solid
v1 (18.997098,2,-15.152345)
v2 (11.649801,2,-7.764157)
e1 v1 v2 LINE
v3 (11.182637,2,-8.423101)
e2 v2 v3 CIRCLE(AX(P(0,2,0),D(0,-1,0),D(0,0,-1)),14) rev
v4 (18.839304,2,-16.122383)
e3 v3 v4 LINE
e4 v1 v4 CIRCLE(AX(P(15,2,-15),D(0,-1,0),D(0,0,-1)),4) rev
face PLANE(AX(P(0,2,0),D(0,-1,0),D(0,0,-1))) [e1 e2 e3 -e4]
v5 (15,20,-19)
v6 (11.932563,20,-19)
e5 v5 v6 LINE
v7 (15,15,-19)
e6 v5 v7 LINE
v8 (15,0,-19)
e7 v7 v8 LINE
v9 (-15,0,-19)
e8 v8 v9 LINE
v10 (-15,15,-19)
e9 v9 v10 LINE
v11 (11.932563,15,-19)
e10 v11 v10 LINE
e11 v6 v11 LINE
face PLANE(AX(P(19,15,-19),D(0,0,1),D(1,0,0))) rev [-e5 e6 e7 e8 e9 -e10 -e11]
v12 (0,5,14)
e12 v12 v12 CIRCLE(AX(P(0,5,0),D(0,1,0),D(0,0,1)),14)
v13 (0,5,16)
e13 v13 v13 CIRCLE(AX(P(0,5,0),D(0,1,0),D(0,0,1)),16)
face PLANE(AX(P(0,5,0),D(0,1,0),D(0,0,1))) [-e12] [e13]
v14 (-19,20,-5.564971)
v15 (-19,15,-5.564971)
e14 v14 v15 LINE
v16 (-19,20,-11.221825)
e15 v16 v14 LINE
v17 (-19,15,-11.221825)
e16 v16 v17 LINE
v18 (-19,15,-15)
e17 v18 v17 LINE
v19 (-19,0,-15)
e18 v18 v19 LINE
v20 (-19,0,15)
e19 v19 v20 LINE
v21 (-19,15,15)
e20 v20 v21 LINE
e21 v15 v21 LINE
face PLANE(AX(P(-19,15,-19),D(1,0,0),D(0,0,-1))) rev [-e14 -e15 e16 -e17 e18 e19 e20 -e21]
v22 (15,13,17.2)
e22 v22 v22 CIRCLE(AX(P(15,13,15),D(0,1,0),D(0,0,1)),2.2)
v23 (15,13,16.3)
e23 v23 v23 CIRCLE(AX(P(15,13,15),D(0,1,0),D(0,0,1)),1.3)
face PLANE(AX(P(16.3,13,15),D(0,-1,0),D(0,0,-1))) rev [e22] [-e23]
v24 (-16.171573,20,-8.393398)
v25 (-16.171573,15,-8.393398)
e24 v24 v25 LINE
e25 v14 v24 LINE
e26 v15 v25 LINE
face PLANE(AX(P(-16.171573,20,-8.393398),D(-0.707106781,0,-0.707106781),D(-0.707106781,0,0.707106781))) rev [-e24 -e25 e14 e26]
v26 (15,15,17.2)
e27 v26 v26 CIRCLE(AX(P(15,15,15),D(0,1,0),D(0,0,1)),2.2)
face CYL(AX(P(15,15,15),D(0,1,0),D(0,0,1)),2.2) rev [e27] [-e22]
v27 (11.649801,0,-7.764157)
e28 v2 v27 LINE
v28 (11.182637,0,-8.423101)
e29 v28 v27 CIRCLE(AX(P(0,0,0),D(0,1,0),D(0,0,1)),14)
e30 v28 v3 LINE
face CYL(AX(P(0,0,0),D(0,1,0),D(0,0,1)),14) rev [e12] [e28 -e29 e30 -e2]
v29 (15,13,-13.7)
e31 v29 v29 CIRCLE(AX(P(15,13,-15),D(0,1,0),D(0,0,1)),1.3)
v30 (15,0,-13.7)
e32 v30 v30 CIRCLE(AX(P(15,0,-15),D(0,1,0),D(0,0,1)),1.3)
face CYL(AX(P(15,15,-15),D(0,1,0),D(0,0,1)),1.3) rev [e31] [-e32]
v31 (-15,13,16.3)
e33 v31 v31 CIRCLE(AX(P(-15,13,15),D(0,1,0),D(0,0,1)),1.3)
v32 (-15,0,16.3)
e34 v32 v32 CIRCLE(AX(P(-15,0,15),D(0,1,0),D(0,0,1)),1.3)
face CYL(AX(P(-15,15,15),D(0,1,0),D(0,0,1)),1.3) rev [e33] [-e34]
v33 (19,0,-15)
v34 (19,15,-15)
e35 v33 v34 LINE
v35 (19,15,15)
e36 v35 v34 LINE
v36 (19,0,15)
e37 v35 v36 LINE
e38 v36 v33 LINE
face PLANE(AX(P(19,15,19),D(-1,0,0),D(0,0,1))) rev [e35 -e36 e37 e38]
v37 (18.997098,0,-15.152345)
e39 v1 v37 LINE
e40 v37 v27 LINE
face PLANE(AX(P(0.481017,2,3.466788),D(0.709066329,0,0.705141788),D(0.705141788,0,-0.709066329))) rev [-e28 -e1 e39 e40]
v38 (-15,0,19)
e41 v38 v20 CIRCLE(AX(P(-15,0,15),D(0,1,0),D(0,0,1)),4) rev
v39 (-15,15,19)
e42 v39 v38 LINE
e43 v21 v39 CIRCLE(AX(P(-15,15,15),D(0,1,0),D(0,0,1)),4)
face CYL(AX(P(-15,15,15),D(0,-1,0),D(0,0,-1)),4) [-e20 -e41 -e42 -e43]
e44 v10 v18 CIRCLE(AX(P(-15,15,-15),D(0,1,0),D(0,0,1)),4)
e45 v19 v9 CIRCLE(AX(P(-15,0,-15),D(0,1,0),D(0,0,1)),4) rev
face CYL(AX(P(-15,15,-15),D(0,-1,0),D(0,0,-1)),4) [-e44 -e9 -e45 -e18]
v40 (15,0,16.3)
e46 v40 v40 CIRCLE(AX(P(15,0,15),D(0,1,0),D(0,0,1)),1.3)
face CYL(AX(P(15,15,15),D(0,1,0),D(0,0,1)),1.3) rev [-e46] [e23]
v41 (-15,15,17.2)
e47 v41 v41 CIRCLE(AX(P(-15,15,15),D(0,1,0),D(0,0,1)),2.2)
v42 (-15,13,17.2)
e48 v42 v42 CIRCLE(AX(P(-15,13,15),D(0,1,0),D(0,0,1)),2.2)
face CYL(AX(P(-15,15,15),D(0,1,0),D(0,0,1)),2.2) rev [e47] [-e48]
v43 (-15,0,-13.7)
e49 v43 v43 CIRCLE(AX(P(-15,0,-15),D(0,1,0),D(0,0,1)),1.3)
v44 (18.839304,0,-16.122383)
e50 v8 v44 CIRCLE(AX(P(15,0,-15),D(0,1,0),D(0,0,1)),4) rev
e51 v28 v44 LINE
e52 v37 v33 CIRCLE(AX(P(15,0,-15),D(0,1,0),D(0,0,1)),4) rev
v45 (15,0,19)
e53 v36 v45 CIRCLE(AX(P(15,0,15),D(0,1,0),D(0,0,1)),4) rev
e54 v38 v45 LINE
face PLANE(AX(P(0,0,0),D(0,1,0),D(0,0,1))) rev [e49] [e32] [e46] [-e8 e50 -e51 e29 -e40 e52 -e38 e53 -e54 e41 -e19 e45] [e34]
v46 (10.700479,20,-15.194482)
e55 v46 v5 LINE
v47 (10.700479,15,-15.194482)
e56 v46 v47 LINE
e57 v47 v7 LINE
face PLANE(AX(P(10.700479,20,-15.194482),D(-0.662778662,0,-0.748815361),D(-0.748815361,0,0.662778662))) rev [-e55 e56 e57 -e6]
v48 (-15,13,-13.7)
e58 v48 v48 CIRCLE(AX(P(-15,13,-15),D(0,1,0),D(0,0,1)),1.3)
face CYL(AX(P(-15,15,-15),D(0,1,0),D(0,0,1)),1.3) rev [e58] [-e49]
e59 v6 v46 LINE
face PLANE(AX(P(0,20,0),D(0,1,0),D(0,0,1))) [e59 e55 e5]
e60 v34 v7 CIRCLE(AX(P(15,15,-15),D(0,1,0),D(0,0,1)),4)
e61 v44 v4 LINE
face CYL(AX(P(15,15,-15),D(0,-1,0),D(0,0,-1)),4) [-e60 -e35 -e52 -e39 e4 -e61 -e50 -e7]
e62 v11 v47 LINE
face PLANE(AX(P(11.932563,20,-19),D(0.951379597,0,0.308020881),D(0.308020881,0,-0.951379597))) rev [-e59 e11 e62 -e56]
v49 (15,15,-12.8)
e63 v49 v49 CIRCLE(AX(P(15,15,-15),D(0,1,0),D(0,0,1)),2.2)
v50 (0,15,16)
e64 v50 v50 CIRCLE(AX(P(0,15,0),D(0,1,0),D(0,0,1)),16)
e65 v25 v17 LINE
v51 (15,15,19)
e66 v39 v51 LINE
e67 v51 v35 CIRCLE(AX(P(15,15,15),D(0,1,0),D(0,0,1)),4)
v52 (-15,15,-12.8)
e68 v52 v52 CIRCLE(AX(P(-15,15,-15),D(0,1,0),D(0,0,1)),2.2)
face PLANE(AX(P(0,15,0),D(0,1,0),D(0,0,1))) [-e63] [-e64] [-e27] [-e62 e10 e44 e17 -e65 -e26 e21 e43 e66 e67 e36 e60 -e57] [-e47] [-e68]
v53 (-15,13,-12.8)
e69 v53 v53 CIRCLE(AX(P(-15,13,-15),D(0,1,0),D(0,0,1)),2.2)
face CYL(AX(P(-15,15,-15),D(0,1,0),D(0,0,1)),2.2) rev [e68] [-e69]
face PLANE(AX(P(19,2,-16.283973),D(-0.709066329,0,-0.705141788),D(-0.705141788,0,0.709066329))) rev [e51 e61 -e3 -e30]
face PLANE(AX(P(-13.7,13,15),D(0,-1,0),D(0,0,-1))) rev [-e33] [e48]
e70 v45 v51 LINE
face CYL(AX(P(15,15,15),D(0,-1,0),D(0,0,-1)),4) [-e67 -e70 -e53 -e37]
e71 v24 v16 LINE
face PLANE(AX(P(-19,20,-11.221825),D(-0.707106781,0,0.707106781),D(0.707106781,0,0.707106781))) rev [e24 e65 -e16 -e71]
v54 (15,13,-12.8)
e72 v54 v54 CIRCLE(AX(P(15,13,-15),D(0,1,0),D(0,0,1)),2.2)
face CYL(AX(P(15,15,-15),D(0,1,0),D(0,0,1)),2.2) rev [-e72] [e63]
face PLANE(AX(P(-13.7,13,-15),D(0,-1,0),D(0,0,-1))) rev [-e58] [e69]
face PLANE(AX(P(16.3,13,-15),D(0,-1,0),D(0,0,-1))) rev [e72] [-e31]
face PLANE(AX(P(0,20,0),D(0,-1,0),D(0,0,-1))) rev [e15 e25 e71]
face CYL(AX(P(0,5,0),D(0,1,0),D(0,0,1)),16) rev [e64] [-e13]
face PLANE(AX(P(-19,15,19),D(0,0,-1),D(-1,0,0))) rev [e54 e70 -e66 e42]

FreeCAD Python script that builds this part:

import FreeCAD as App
import Part
import Sketcher
Q = App.Units.Quantity


def edges_at(feature, points):
    """Names of the edges that pass closest to the given points."""
    edges = feature.Shape.Edges
    near = lambda p: min(range(len(edges)), key=lambda i: edges[i].distToShape(Part.Vertex(*p))[0])
    return sorted({f"Edge{near(p) + 1}" for p in points})

doc = App.newDocument("Part")
params = doc.addObject("Spreadsheet::Sheet", "Params")
for row, (alias, value) in enumerate([
    ("sketch1_width", "38 mm"),
    ("pad1_length", "15 mm"),
    ("sketch2_diameter", "32 mm"),
    ("pocket1_length", "10 mm"),
    ("sketch3_diameter", "28 mm"),
    ("fillet_radius", "4 mm"),
    ("sketch4_diameter", "2.6 mm"),
    ("hole_diameter", "2.6 mm"),
    ("hole_cbore_diameter", "4.4 mm"),
    ("hole_cbore_depth", "2 mm"),
    ("sketch5_length", "1 mm"),
    ("pocket3_length", "2 mm"),
    ("sketch6_length", "4 mm"),
    ("pad2_length", "5 mm"),
], start=1):
    params.set(f"A{row}", alias)
    params.set(f"B{row}", "=" + value)
    params.setAlias(f"B{row}", alias)

body = doc.addObject("PartDesign::Body", "Body")

# Sketch on XZ plane
sketch1 = body.newObject("Sketcher::SketchObject", "Sketch")
sketch1.AttachmentSupport = (doc.getObject("XZ_Plane"), [""])
sketch1.MapMode = "FlatFace"
sketch1.addGeometry(Part.LineSegment(App.Vector(-19, -19, 0), App.Vector(-19, 19, 0)), False)
sketch1.addGeometry(Part.LineSegment(App.Vector(-19, 19, 0), App.Vector(19, 19, 0)), False)
sketch1.addGeometry(Part.LineSegment(App.Vector(19, 19, 0), App.Vector(19, -19, 0)), False)
sketch1.addGeometry(Part.LineSegment(App.Vector(19, -19, 0), App.Vector(-19, -19, 0)), False)
sketch1.addConstraint(Sketcher.Constraint("Coincident", 0, 2, 1, 1))
sketch1.addConstraint(Sketcher.Constraint("Coincident", 1, 2, 2, 1))
sketch1.addConstraint(Sketcher.Constraint("Coincident", 2, 2, 3, 1))
sketch1.addConstraint(Sketcher.Constraint("Coincident", 3, 2, 0, 1))
sketch1.addConstraint(Sketcher.Constraint("Vertical", 0))
sketch1.addConstraint(Sketcher.Constraint("Horizontal", 1))
sketch1.addConstraint(Sketcher.Constraint("Vertical", 2))
sketch1.addConstraint(Sketcher.Constraint("Horizontal", 3))
sketch1.addConstraint(Sketcher.Constraint("Symmetric", 0, 2, 2, 2, -1, 1))
sketch1.addConstraint(Sketcher.Constraint("Equal", 3, 0))
sketch1.addConstraint(Sketcher.Constraint("DistanceX", 1, 1, 1, 2, Q("38 mm")))
sketch1.setExpression("Constraints[10]", "Params.sketch1_width")
pad1 = body.newObject("PartDesign::Pad", "Pad")
pad1.Profile = sketch1
pad1.setExpression("Length", "Params.pad1_length")
pad1.Reversed = True

# Sketch on XZ plane
sketch2 = body.newObject("Sketcher::SketchObject", "Sketch001")
sketch2.AttachmentSupport = (doc.getObject("XZ_Plane"), [""])
sketch2.MapMode = "FlatFace"
sketch2.AttachmentOffset = App.Placement(App.Vector(0, 0, -15), App.Rotation())
sketch2.addGeometry(Part.Circle(App.Vector(0, 0, 0), App.Vector(0, 0, 1), 16), False)
sketch2.addConstraint(Sketcher.Constraint("Coincident", 0, 3, -1, 1))
sketch2.addConstraint(Sketcher.Constraint("Diameter", 0, Q("32 mm")))
sketch2.setExpression("Constraints[1]", "Params.sketch2_diameter")
pocket1 = body.newObject("PartDesign::Pocket", "Pocket")
pocket1.Profile = sketch2
pocket1.setExpression("Length", "Params.pocket1_length")
pocket1.Reversed = True

# Sketch on XZ plane
sketch3 = body.newObject("Sketcher::SketchObject", "Sketch002")
sketch3.AttachmentSupport = (doc.getObject("XZ_Plane"), [""])
sketch3.MapMode = "FlatFace"
sketch3.AttachmentOffset = App.Placement(App.Vector(0, 0, -15), App.Rotation())
sketch3.addGeometry(Part.Circle(App.Vector(0, 0, 0), App.Vector(0, 0, 1), 14), False)
sketch3.addConstraint(Sketcher.Constraint("Coincident", 0, 3, -1, 1))
sketch3.addConstraint(Sketcher.Constraint("Diameter", 0, Q("28 mm")))
sketch3.setExpression("Constraints[1]", "Params.sketch3_diameter")
pocket2 = body.newObject("PartDesign::Pocket", "Pocket001")
pocket2.Profile = sketch3
pocket2.Type = "ThroughAll"
pocket2.Reversed = True
doc.recompute()

fillet = body.newObject("PartDesign::Fillet", "Fillet")
fillet.Base = (pocket2, edges_at(pocket2, [
    (19, 7.5, 19),
    (-19, 7.5, 19),
    (-19, 7.5, -19),
    (19, 7.5, -19),
]))
fillet.setExpression("Radius", "Params.fillet_radius")

# Sketch on XZ plane
sketch4 = body.newObject("Sketcher::SketchObject", "Sketch003")
sketch4.AttachmentSupport = (doc.getObject("XZ_Plane"), [""])
sketch4.MapMode = "FlatFace"
sketch4.AttachmentOffset = App.Placement(App.Vector(0, 0, -15), App.Rotation())
sketch4.addGeometry(Part.Circle(App.Vector(-15, -15, 0), App.Vector(0, 0, 1), 1.3), False)
sketch4.addGeometry(Part.Circle(App.Vector(15, -15, 0), App.Vector(0, 0, 1), 1.3), False)
sketch4.addGeometry(Part.Circle(App.Vector(-15, 15, 0), App.Vector(0, 0, 1), 1.3), False)
sketch4.addGeometry(Part.Circle(App.Vector(15, 15, 0), App.Vector(0, 0, 1), 1.3), False)
sketch4.addConstraint(Sketcher.Constraint("Equal", 0, 1))
sketch4.addConstraint(Sketcher.Constraint("Equal", 1, 2))
sketch4.addConstraint(Sketcher.Constraint("Equal", 2, 3))
sketch4.addConstraint(Sketcher.Constraint("Symmetric", 1, 3, 2, 3, -1, 1))
sketch4.addConstraint(Sketcher.Constraint("Symmetric", 0, 3, 3, 3, -1, 1))
sketch4.addConstraint(Sketcher.Constraint("Symmetric", 0, 3, 1, 3, -2))
sketch4.addConstraint(Sketcher.Constraint("Diameter", 0, Q("2.6 mm")))
sketch4.addConstraint(Sketcher.Constraint("DistanceX", 0, 3, -1, 1, Q("15 mm")))
sketch4.addConstraint(Sketcher.Constraint("DistanceY", 0, 3, -1, 1, Q("15 mm")))
sketch4.setExpression("Constraints[6]", "Params.sketch4_diameter")
doc.recompute()
hole = body.newObject("PartDesign::Hole", "Hole")
hole.Profile = sketch4
hole.ThreadType = "None"
hole.setExpression("Diameter", "Params.hole_diameter")
hole.DepthType = "ThroughAll"
hole.HoleCutType = "Counterbore"
hole.setExpression("HoleCutDiameter", "Params.hole_cbore_diameter")
hole.setExpression("HoleCutDepth", "Params.hole_cbore_depth")
hole.Reversed = True

# Sketch on XZ plane
sketch5 = body.newObject("Sketcher::SketchObject", "Sketch004")
sketch5.AttachmentSupport = (doc.getObject("XZ_Plane"), [""])
sketch5.MapMode = "FlatFace"
sketch5.addGeometry(Part.LineSegment(App.Vector(0.481017, 3.466788, 0), App.Vector(0.343584, 2.476277, 0)), False)
sketch5.addGeometry(Part.LineSegment(App.Vector(0.343584, 2.476277, 0), App.Vector(19, -16.283973, 0)), False)
sketch5.addGeometry(Part.LineSegment(App.Vector(19, -16.283973, 0), App.Vector(19, -15.155264, 0)), False)
sketch5.addGeometry(Part.LineSegment(App.Vector(19, -15.155264, 0), App.Vector(0.481017, 3.466788, 0)), False)
sketch5.addConstraint(Sketcher.Constraint("Coincident", 0, 2, 1, 1))
sketch5.addConstraint(Sketcher.Constraint("Coincident", 1, 2, 2, 1))
sketch5.addConstraint(Sketcher.Constraint("Coincident", 2, 2, 3, 1))
sketch5.addConstraint(Sketcher.Constraint("Coincident", 3, 2, 0, 1))
sketch5.addConstraint(Sketcher.Constraint("Vertical", 2))
sketch5.addConstraint(Sketcher.Constraint("Distance", 0, Q("1 mm")))
sketch5.addConstraint(Sketcher.Constraint("DistanceX", -1, 1, 1, 2, Q("19 mm")))
sketch5.addConstraint(Sketcher.Constraint("DistanceY", 2, 1, 2, 2, Q("1.128709 mm")))
sketch5.addConstraint(Sketcher.Constraint("Distance", 1, Q("26.457681 mm")))
sketch5.addConstraint(Sketcher.Constraint("Distance", 3, Q("26.262779 mm")))
sketch5.addConstraint(Sketcher.Constraint("DistanceY", -1, 1, 3, 2, Q("3.466788 mm")))
sketch5.addConstraint(Sketcher.Constraint("DistanceY", 1, 2, 0, 2, Q("18.760251 mm")))
sketch5.setExpression("Constraints[5]", "Params.sketch5_length")
pocket3 = body.newObject("PartDesign::Pocket", "Pocket002")
pocket3.Profile = sketch5
pocket3.setExpression("Length", "Params.pocket3_length")

# Sketch on XZ plane
sketch6 = body.newObject("Sketcher::SketchObject", "Sketch005")
sketch6.AttachmentSupport = (doc.getObject("XZ_Plane"), [""])
sketch6.MapMode = "FlatFace"
sketch6.AttachmentOffset = App.Placement(App.Vector(0, 0, -15), App.Rotation())
sketch6.addGeometry(Part.LineSegment(App.Vector(-16.2, -8.4, 0), App.Vector(-19, -11.2, 0)), False)
sketch6.addGeometry(Part.LineSegment(App.Vector(-19, -11.2, 0), App.Vector(-19, -5.6, 0)), False)
sketch6.addGeometry(Part.LineSegment(App.Vector(-19, -5.6, 0), App.Vector(-16.2, -8.4, 0)), False)
sketch6.addGeometry(Part.LineSegment(App.Vector(11.9, -19, 0), App.Vector(10.7, -15.2, 0)), False)
sketch6.addGeometry(Part.LineSegment(App.Vector(10.7, -15.2, 0), App.Vector(15, -19, 0)), False)
sketch6.addGeometry(Part.LineSegment(App.Vector(15, -19, 0), App.Vector(11.9, -19, 0)), False)
sketch6.addConstraint(Sketcher.Constraint("Coincident", 0, 2, 1, 1))
sketch6.addConstraint(Sketcher.Constraint("Coincident", 1, 2, 2, 1))
sketch6.addConstraint(Sketcher.Constraint("Coincident", 2, 2, 0, 1))
sketch6.addConstraint(Sketcher.Constraint("Coincident", 3, 2, 4, 1))
sketch6.addConstraint(Sketcher.Constraint("Coincident", 4, 2, 5, 1))
sketch6.addConstraint(Sketcher.Constraint("Coincident", 5, 2, 3, 1))
sketch6.addConstraint(Sketcher.Constraint("Vertical", 1))
sketch6.addConstraint(Sketcher.Constraint("Horizontal", 5))
sketch6.addConstraint(Sketcher.Constraint("Perpendicular", 0, 2))
sketch6.addConstraint(Sketcher.Constraint("Equal", 0, 2))
sketch6.addConstraint(Sketcher.Constraint("Equal", 2, 3))
sketch6.addConstraint(Sketcher.Constraint("Distance", 0, Q("4 mm")))
sketch6.addConstraint(Sketcher.Constraint("DistanceX", 0, 2, -1, 1, Q("19 mm")))
sketch6.addConstraint(Sketcher.Constraint("DistanceX", -1, 1, 4, 2, Q("15 mm")))
sketch6.addConstraint(Sketcher.Constraint("DistanceY", 4, 2, -1, 1, Q("19 mm")))
sketch6.addConstraint(Sketcher.Constraint("Angle", 3, Q("107.94 deg")))
sketch6.addConstraint(Sketcher.Constraint("DistanceY", 2, 2, -1, 1, Q("8.393398 mm")))
sketch6.addConstraint(Sketcher.Constraint("DistanceX", 5, 2, 5, 1, Q("3.067437 mm")))
sketch6.setExpression("Constraints[11]", "Params.sketch6_length")
pad2 = body.newObject("PartDesign::Pad", "Pad001")
pad2.Profile = sketch6
pad2.setExpression("Length", "Params.pad2_length")
pad2.Reversed = True

doc.recompute()
